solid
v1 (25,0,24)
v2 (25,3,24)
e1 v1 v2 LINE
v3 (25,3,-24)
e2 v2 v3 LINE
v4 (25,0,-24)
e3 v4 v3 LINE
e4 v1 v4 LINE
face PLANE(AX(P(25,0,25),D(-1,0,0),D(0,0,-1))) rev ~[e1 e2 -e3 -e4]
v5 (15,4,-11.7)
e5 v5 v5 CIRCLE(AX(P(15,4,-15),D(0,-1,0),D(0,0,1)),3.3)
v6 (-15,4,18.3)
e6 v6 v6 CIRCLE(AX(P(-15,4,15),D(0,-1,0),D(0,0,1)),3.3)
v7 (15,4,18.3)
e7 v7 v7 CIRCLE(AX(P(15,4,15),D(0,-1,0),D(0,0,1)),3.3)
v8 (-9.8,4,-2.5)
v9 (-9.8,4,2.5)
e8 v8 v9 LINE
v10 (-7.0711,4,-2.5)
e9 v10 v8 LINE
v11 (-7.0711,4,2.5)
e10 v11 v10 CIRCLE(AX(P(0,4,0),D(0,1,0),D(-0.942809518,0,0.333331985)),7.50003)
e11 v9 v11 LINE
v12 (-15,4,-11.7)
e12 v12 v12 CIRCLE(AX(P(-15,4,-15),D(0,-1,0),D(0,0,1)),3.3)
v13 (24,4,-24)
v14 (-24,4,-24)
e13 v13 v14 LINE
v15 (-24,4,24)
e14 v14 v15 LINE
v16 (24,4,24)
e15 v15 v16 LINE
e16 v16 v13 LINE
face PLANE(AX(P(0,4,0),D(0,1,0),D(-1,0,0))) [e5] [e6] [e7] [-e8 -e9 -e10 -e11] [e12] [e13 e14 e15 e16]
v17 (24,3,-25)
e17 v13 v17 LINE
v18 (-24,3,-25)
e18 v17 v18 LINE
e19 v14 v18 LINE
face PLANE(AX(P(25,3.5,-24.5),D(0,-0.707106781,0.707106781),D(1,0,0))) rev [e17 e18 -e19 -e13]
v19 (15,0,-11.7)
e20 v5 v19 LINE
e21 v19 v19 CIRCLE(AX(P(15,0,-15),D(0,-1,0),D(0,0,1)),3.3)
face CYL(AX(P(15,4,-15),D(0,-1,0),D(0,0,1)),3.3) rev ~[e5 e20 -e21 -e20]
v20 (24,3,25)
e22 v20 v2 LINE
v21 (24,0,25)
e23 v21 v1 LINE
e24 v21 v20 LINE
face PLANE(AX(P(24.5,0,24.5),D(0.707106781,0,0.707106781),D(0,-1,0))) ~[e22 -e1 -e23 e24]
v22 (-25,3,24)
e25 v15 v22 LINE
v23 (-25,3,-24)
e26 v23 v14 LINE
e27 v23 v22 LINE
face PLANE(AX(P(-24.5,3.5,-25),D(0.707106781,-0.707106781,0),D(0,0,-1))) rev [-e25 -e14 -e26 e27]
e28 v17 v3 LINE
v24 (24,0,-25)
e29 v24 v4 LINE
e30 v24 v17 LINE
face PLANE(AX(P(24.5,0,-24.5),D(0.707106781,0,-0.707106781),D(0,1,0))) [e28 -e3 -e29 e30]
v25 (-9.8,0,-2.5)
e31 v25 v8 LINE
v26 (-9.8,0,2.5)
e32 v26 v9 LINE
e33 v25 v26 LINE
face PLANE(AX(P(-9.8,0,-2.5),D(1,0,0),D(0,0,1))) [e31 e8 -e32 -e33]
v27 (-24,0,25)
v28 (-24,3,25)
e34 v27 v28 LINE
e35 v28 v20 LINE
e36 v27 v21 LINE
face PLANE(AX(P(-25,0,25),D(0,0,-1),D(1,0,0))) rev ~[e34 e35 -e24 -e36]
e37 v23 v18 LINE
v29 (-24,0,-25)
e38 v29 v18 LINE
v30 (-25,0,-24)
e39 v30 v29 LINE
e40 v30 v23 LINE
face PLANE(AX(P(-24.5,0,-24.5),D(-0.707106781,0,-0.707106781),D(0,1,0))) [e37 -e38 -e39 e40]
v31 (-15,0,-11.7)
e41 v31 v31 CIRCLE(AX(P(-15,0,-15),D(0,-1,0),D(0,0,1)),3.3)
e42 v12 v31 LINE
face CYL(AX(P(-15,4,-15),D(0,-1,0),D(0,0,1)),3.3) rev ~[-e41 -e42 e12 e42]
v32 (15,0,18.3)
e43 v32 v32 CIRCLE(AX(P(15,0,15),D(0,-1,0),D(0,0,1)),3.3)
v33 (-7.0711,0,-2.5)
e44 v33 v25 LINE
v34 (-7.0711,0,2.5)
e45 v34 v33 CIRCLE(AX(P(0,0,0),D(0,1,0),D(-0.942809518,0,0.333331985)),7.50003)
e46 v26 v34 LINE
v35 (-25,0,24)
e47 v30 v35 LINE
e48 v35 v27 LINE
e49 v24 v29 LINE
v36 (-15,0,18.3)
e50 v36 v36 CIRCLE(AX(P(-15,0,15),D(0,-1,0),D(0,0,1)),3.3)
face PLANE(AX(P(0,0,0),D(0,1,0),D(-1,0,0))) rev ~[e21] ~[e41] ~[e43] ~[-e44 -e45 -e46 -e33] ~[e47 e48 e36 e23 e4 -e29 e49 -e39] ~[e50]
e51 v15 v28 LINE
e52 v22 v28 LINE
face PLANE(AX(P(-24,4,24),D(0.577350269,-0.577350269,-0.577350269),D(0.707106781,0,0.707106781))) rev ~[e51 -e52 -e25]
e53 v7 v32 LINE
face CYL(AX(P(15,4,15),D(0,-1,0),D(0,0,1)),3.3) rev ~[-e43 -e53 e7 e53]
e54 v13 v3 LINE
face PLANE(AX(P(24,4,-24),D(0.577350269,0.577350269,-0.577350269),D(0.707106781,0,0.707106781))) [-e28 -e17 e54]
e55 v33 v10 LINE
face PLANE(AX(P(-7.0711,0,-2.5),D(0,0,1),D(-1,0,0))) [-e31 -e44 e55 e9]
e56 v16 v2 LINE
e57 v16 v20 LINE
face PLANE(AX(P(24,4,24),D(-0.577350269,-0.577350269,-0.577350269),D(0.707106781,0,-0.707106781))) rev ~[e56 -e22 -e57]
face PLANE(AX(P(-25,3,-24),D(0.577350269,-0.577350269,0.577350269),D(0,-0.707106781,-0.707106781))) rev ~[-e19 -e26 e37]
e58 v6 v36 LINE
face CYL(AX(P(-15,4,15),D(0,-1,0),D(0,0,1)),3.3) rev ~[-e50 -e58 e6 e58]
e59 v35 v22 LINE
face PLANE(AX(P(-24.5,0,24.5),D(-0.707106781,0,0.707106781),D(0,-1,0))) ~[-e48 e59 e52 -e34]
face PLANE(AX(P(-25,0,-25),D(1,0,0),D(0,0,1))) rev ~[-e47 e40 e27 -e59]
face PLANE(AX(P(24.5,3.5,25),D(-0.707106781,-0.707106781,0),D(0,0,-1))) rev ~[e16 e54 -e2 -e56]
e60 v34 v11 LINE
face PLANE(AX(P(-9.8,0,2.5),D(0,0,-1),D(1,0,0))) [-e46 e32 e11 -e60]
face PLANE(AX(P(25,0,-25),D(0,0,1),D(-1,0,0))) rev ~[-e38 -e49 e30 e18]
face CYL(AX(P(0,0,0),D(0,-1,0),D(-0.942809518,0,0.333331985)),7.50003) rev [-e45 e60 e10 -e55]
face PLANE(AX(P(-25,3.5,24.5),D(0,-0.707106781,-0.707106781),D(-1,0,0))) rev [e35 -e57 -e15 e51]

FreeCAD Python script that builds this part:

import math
import FreeCAD as App
import Part
import Sketcher
Q = App.Units.Quantity


def edges_at(feature, points):
    """Names of the edges that pass closest to the given points."""
    edges = feature.Shape.Edges
    near = lambda p: min(range(len(edges)), key=lambda i: edges[i].distToShape(Part.Vertex(*p))[0])
    return sorted({f"Edge{near(p) + 1}" for p in points})


def add_polygon(sketch, points):
    """Adds a closed chain of lines whose ends are joined by coincident constraints."""
    first, n = sketch.GeometryCount, len(points)
    for a, b in zip(points, points[1:] + points[:1]):
        sketch.addGeometry(Part.LineSegment(App.Vector(*a, 0), App.Vector(*b, 0)), False)
    for i in range(n):
        sketch.addConstraint(Sketcher.Constraint("Coincident", first + i, 2, first + (i + 1) % n, 1))

doc = App.newDocument("Part")
body = doc.addObject("PartDesign::Body", "Body")

# Sketch on XZ plane
sketch1 = body.newObject("Sketcher::SketchObject", "Sketch")
sketch1.AttachmentSupport = (doc.getObject("XZ_Plane"), [""])
sketch1.MapMode = "FlatFace"
add_polygon(sketch1, [(-25, -25), (-25, 25), (25, 25), (25, -25)])  # lines 0-3
sketch1.addGeometry(Part.ArcOfCircle(Part.Circle(App.Vector(0, 0, 0), App.Vector(0, 0, 1), 7.50003), math.radians(-160.528861), math.radians(160.528861)), False)  # 4
sketch1.addGeometry(Part.LineSegment(App.Vector(-7.0711, 2.5, 0), App.Vector(-9.8, 2.5, 0)), False)  # 5
sketch1.addGeometry(Part.LineSegment(App.Vector(-9.8, 2.5, 0), App.Vector(-9.8, -2.5, 0)), False)  # 6
sketch1.addGeometry(Part.LineSegment(App.Vector(-9.8, -2.5, 0), App.Vector(-7.0711, -2.5, 0)), False)  # 7
sketch1.addConstraint([
    Sketcher.Constraint("Coincident", 4, 2, 5, 1),
    Sketcher.Constraint("Coincident", 5, 2, 6, 1),
    Sketcher.Constraint("Coincident", 6, 2, 7, 1),
    Sketcher.Constraint("Coincident", 7, 2, 4, 1),
    Sketcher.Constraint("Vertical", 0),
    Sketcher.Constraint("Horizontal", 1),
    Sketcher.Constraint("Vertical", 2),
    Sketcher.Constraint("Horizontal", 3),
    Sketcher.Constraint("Horizontal", 5),
    Sketcher.Constraint("Vertical", 6),
    Sketcher.Constraint("Horizontal", 7),
    Sketcher.Constraint("Coincident", 4, 3, -1, 1),
    Sketcher.Constraint("Symmetric", 0, 2, 2, 2, -1, 1),
    Sketcher.Constraint("Vertical", 4, 2, 7, 2),
    Sketcher.Constraint("Equal", 3, 0),
    Sketcher.Constraint("Radius", 4, Q("7.5 mm")),
    Sketcher.Constraint("DistanceX", 1, 1, 1, 2, Q("50 mm")),
    Sketcher.Constraint("DistanceY", 6, 2, 6, 1, Q("5 mm")),
    Sketcher.Constraint("DistanceX", 5, 2, -1, 1, Q("9.8 mm")),
])
pad1 = body.newObject("PartDesign::Pad", "Pad")
pad1.Profile = sketch1
pad1.Length = 4
pad1.Reversed = True

# Sketch on XZ plane
sketch2 = body.newObject("Sketcher::SketchObject", "Sketch001")
sketch2.AttachmentSupport = (doc.getObject("XZ_Plane"), [""])
sketch2.MapMode = "FlatFace"
sketch2.AttachmentOffset = App.Placement(App.Vector(0, 0, -4), App.Rotation())
sketch2.addGeometry([
    Part.Circle(App.Vector(-15, 15, 0), App.Vector(0, 0, 1), 3.3),
    Part.Circle(App.Vector(-15, -15, 0), App.Vector(0, 0, 1), 3.3),
    Part.Circle(App.Vector(15, -15, 0), App.Vector(0, 0, 1), 3.3),
    Part.Circle(App.Vector(15, 15, 0), App.Vector(0, 0, 1), 3.3),
], False)
sketch2.addConstraint([
    Sketcher.Constraint("Equal", 0, 1),
    Sketcher.Constraint("Equal", 1, 2),
    Sketcher.Constraint("Equal", 2, 3),
    Sketcher.Constraint("Symmetric", 0, 3, 2, 3, -1, 1),
    Sketcher.Constraint("Symmetric", 1, 3, 3, 3, -1, 1),
    Sketcher.Constraint("Symmetric", 1, 3, 2, 3, -2),
    Sketcher.Constraint("Diameter", 0, Q("6.6 mm")),
    Sketcher.Constraint("DistanceX", 0, 3, -1, 1, Q("15 mm")),
    Sketcher.Constraint("DistanceY", -1, 1, 0, 3, Q("15 mm")),
])
doc.recompute()
hole = body.newObject("PartDesign::Hole", "Hole")
hole.Profile = sketch2
hole.ThreadType = "None"
hole.Diameter = 6.6
hole.DepthType = "ThroughAll"
hole.Reversed = True
doc.recompute()

chamfer = body.newObject("PartDesign::Chamfer", "Chamfer")
chamfer.Base = (hole, edges_at(hole, [
    (-25, 2, 25),
    (25, 2, 25),
    (25, 2, -25),
    (0, 4, -25),
    (-25, 4, 0),
    (0, 4, 25),
    (25, 4, 0),
    (-25, 2, -25),
]))
chamfer.Size = 1

doc.recompute()
